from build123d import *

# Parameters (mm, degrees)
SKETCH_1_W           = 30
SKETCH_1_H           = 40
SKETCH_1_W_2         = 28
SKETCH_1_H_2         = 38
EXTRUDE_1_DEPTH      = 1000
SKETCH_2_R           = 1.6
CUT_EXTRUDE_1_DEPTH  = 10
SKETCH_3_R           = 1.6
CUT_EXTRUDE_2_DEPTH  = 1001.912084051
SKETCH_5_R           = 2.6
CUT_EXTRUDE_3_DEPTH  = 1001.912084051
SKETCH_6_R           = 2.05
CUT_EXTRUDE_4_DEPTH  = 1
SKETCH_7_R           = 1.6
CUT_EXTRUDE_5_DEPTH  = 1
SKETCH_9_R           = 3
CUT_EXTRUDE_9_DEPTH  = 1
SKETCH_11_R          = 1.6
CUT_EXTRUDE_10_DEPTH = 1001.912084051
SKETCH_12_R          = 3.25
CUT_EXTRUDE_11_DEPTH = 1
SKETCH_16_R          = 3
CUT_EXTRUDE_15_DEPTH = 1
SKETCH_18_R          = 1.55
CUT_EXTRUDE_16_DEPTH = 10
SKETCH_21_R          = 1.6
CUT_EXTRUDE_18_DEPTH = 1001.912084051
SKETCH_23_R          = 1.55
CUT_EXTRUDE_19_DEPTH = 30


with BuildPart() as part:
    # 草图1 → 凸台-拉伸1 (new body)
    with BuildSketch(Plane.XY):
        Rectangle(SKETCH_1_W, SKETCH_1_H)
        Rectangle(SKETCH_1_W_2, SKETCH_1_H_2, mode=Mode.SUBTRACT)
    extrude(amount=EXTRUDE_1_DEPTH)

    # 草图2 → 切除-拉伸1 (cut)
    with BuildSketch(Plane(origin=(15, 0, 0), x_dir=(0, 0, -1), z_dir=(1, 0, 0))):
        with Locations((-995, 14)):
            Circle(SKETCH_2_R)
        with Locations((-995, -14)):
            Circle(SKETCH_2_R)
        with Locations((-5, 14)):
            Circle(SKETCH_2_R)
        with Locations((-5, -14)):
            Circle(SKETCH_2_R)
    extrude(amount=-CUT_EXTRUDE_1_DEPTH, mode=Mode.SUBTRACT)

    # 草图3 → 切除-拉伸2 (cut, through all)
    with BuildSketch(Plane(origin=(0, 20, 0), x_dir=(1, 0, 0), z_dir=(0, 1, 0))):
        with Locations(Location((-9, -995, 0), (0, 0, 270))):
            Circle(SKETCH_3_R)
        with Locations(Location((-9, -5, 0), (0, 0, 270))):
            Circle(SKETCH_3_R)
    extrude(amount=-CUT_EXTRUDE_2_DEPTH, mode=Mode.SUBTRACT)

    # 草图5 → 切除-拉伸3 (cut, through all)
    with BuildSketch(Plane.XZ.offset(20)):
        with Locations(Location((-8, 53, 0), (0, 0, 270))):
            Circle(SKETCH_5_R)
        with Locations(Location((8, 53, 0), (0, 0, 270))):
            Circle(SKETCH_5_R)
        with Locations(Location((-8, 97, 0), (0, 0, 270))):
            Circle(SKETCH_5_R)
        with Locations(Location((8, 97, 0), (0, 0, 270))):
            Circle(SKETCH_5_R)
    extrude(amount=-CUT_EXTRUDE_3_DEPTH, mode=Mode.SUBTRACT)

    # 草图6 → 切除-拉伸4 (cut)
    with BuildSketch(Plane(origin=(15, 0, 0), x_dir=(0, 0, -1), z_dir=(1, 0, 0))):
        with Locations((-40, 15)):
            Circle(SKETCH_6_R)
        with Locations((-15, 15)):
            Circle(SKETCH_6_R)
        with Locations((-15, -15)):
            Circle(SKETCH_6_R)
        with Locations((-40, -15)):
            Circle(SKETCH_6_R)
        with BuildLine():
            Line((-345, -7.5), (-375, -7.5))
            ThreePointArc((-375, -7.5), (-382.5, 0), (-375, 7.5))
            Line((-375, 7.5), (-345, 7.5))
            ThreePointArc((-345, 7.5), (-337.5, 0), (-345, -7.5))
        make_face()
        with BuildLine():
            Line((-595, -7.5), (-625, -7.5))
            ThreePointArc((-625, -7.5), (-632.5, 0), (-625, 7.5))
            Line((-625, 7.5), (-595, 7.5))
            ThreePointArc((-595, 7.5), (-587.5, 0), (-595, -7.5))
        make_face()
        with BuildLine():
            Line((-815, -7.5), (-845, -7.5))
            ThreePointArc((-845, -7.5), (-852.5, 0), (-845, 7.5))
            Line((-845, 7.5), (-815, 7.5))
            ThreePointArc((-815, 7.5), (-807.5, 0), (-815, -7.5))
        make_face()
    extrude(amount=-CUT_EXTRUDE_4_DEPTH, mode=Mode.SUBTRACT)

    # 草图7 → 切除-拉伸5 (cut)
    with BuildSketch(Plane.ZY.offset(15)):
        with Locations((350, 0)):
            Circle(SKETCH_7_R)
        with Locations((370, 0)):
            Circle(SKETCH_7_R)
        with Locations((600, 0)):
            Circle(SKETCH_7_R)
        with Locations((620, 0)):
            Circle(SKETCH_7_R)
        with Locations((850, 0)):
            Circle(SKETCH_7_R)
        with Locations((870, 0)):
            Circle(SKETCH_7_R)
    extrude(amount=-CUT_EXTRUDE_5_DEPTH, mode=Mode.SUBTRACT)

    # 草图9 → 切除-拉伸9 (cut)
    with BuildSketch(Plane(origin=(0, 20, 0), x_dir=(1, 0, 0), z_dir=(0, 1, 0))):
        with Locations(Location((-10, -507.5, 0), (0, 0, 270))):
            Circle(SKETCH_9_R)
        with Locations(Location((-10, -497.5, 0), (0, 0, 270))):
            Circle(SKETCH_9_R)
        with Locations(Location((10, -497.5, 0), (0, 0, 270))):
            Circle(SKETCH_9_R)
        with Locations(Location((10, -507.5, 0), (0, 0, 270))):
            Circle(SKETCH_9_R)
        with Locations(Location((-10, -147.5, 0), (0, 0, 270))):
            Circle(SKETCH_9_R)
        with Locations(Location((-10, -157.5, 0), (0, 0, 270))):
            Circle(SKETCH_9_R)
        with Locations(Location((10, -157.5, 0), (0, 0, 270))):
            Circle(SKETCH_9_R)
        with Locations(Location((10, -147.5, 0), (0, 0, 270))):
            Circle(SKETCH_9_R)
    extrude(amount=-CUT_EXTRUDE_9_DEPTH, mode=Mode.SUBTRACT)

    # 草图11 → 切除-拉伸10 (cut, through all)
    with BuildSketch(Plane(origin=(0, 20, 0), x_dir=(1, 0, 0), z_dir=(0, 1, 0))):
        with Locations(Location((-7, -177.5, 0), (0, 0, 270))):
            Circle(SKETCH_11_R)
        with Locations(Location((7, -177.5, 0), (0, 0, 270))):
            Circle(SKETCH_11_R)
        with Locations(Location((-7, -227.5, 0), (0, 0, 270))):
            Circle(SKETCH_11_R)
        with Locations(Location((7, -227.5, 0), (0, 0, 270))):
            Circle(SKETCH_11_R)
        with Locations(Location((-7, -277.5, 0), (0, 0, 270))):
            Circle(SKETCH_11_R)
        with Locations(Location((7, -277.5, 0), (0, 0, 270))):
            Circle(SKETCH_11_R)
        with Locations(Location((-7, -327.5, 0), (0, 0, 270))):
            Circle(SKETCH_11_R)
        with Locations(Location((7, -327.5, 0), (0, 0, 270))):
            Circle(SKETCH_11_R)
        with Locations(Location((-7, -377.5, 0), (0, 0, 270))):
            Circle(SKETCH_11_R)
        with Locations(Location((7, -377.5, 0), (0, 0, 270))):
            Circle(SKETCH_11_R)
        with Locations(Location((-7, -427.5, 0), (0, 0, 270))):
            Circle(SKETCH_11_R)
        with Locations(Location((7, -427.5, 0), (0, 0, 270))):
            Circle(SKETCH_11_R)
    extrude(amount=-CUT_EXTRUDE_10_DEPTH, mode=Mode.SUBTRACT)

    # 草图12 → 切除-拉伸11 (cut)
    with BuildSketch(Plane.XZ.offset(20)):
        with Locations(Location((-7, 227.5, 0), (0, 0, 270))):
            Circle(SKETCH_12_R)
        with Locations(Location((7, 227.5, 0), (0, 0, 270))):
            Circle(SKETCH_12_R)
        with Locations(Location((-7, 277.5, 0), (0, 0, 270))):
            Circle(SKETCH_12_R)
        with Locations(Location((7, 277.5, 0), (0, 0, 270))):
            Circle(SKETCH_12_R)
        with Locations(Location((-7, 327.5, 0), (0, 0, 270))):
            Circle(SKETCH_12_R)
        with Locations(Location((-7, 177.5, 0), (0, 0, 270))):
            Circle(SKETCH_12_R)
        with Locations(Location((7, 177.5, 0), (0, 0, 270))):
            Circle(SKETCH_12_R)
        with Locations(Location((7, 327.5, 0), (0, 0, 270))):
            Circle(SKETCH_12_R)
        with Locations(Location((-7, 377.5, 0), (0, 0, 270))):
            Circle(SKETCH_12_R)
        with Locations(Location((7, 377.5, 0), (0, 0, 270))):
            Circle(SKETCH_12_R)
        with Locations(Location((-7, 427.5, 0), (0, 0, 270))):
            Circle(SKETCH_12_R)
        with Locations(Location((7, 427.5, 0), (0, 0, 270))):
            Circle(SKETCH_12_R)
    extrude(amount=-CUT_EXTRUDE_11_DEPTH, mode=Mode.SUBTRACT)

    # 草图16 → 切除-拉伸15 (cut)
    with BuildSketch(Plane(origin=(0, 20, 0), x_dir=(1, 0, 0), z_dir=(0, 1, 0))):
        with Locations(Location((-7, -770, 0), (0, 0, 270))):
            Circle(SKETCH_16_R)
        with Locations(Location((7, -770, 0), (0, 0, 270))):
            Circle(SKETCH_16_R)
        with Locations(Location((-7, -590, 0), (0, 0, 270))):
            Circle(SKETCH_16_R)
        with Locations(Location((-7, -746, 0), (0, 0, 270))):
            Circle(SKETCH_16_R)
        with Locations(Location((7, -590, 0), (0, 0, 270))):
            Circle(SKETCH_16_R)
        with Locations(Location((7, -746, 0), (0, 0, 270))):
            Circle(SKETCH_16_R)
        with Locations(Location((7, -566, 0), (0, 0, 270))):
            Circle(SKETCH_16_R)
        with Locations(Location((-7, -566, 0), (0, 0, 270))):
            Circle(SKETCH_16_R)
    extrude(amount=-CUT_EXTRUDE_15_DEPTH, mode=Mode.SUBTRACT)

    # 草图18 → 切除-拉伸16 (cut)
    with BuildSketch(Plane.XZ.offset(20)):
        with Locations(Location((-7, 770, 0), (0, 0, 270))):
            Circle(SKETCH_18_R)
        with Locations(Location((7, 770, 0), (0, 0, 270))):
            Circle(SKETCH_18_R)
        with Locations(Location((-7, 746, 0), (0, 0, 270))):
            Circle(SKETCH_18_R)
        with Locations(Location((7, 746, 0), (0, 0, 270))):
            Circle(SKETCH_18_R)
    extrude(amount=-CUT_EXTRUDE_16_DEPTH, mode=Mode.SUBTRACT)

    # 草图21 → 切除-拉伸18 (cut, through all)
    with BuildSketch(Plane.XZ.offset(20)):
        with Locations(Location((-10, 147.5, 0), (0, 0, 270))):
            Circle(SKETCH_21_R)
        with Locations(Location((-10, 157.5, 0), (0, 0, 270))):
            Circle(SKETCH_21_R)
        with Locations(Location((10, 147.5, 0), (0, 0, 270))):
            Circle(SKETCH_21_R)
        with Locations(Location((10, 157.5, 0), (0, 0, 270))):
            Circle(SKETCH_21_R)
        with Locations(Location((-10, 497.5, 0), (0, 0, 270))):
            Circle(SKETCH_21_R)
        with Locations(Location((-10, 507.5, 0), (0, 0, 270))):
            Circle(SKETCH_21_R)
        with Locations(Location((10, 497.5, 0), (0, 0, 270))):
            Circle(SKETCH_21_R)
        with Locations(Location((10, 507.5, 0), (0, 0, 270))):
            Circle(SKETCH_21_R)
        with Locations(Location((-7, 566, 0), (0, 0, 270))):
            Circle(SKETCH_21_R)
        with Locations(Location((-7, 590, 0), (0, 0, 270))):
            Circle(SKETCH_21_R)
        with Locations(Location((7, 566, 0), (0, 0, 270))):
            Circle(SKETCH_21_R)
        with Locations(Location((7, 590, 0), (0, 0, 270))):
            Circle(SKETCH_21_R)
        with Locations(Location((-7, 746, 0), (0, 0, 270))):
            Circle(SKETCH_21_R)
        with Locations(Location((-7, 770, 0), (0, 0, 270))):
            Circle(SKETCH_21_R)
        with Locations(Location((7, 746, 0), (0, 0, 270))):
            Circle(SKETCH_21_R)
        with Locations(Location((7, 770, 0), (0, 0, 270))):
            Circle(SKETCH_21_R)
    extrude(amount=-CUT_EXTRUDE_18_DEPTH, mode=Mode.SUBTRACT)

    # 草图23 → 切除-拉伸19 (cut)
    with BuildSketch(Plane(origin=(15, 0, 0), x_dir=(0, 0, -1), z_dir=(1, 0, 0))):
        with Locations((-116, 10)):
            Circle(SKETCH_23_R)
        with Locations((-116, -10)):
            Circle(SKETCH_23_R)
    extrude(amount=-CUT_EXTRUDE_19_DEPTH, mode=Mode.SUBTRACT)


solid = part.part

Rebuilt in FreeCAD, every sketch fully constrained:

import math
import FreeCAD as App
import Part
import Sketcher

V = App.Vector
Q = App.Units.Quantity

doc = App.newDocument("Part")
body = doc.addObject("PartDesign::Body", "Body")

sketch1 = doc.addObject("Sketcher::SketchObject", "Sketch")
body.addObject(sketch1)
sketch1.AttachmentSupport = (doc.XY_Plane, [""])
sketch1.MapMode = "FlatFace"
sketch1.addGeometry([
    Part.LineSegment(V(-15, 20, 0), V(-15, -20, 0)),
    Part.LineSegment(V(-15, -20, 0), V(15, -20, 0)),
    Part.LineSegment(V(15, -20, 0), V(15, 20, 0)),
    Part.LineSegment(V(15, 20, 0), V(-15, 20, 0)),
    Part.LineSegment(V(14, -19, 0), V(-14, -19, 0)),
    Part.LineSegment(V(-14, -19, 0), V(-14, 19, 0)),
    Part.LineSegment(V(-14, 19, 0), V(14, 19, 0)),
    Part.LineSegment(V(14, 19, 0), V(14, -19, 0)),
], False)
sketch1.addConstraint([
    Sketcher.Constraint("Coincident", 0, 2, 1, 1),
    Sketcher.Constraint("Coincident", 1, 2, 2, 1),
    Sketcher.Constraint("Coincident", 2, 2, 3, 1),
    Sketcher.Constraint("Coincident", 3, 2, 0, 1),
    Sketcher.Constraint("Coincident", 4, 2, 5, 1),
    Sketcher.Constraint("Coincident", 5, 2, 6, 1),
    Sketcher.Constraint("Coincident", 6, 2, 7, 1),
    Sketcher.Constraint("Coincident", 7, 2, 4, 1),
    Sketcher.Constraint("Vertical", 0),
    Sketcher.Constraint("Horizontal", 1),
    Sketcher.Constraint("Vertical", 2),
    Sketcher.Constraint("Horizontal", 3),
    Sketcher.Constraint("Horizontal", 4),
    Sketcher.Constraint("Vertical", 5),
    Sketcher.Constraint("Horizontal", 6),
    Sketcher.Constraint("Vertical", 7),
    Sketcher.Constraint("Symmetric", 0, 2, 2, 2, -1, 1),
    Sketcher.Constraint("Symmetric", 4, 2, 6, 2, -1, 1),
    Sketcher.Constraint("DistanceX", 1, 1, 1, 2, Q("30 mm")),
    Sketcher.Constraint("DistanceX", 4, 2, 4, 1, Q("28 mm")),
    Sketcher.Constraint("DistanceY", 0, 2, 0, 1, Q("40 mm")),
    Sketcher.Constraint("DistanceY", 5, 1, 5, 2, Q("38 mm")),
])
pad1 = doc.addObject("PartDesign::Pad", "Pad")
body.addObject(pad1)
pad1.Profile = sketch1
pad1.Length = 1000

sketch2 = doc.addObject("Sketcher::SketchObject", "Sketch001")
body.addObject(sketch2)
sketch2.AttachmentSupport = (doc.YZ_Plane, [""])
sketch2.MapMode = "FlatFace"
sketch2.AttachmentOffset = App.Placement(V(0, 0, 15), App.Rotation())
sketch2.addGeometry([
    Part.Circle(V(14, 995, 0), V(0, 0, 1), 1.6),
    Part.Circle(V(-14, 995, 0), V(0, 0, 1), 1.6),
    Part.Circle(V(14, 5, 0), V(0, 0, 1), 1.6),
    Part.Circle(V(-14, 5, 0), V(0, 0, 1), 1.6),
], False)
sketch2.addConstraint([
    Sketcher.Constraint("Equal", 0, 1),
    Sketcher.Constraint("Equal", 1, 2),
    Sketcher.Constraint("Equal", 2, 3),
    Sketcher.Constraint("Symmetric", 0, 3, 1, 3, -2),
    Sketcher.Constraint("Symmetric", 2, 3, 3, 3, -2),
    Sketcher.Constraint("Vertical", 0, 3, 2, 3),
    Sketcher.Constraint("Diameter", 0, Q("3.2 mm")),
    Sketcher.Constraint("DistanceX", -1, 1, 0, 3, Q("14 mm")),
    Sketcher.Constraint("DistanceY", -1, 1, 0, 3, Q("995 mm")),
    Sketcher.Constraint("DistanceY", -1, 1, 2, 3, Q("5 mm")),
])
pocket1 = doc.addObject("PartDesign::Pocket", "Pocket")
body.addObject(pocket1)
pocket1.Profile = sketch2
pocket1.Length = 10

sketch3 = doc.addObject("Sketcher::SketchObject", "Sketch002")
body.addObject(sketch3)
sketch3.AttachmentSupport = (doc.XZ_Plane, [""])
sketch3.MapMode = "FlatFace"
sketch3.AttachmentOffset = App.Placement(V(0, 0, -20), App.Rotation())
sketch3.addGeometry([
    Part.Circle(V(-9, 995, 0), V(0, 0, 1), 1.6),
    Part.Circle(V(-9, 5, 0), V(0, 0, 1), 1.6),
], False)
sketch3.addConstraint([
    Sketcher.Constraint("Equal", 0, 1),
    Sketcher.Constraint("Vertical", 0, 3, 1, 3),
    Sketcher.Constraint("Diameter", 0, Q("3.2 mm")),
    Sketcher.Constraint("DistanceX", 0, 3, -1, 1, Q("9 mm")),
    Sketcher.Constraint("DistanceY", -1, 1, 0, 3, Q("995 mm")),
    Sketcher.Constraint("DistanceY", -1, 1, 1, 3, Q("5 mm")),
])
pocket2 = doc.addObject("PartDesign::Pocket", "Pocket001")
body.addObject(pocket2)
pocket2.Profile = sketch3
pocket2.Type = "ThroughAll"
pocket2.Reversed = True

sketch4 = doc.addObject("Sketcher::SketchObject", "Sketch003")
body.addObject(sketch4)
sketch4.AttachmentSupport = (doc.XZ_Plane, [""])
sketch4.MapMode = "FlatFace"
sketch4.AttachmentOffset = App.Placement(V(0, 0, 20), App.Rotation())
sketch4.addGeometry([
    Part.Circle(V(-8, 53, 0), V(0, 0, 1), 2.6),
    Part.Circle(V(8, 53, 0), V(0, 0, 1), 2.6),
    Part.Circle(V(-8, 97, 0), V(0, 0, 1), 2.6),
    Part.Circle(V(8, 97, 0), V(0, 0, 1), 2.6),
], False)
sketch4.addConstraint([
    Sketcher.Constraint("Equal", 0, 1),
    Sketcher.Constraint("Equal", 1, 2),
    Sketcher.Constraint("Equal", 2, 3),
    Sketcher.Constraint("Symmetric", 0, 3, 1, 3, -2),
    Sketcher.Constraint("Symmetric", 2, 3, 3, 3, -2),
    Sketcher.Constraint("Vertical", 0, 3, 2, 3),
    Sketcher.Constraint("Diameter", 0, Q("5.2 mm")),
    Sketcher.Constraint("DistanceX", 0, 3, -1, 1, Q("8 mm")),
    Sketcher.Constraint("DistanceY", -1, 1, 0, 3, Q("53 mm")),
    Sketcher.Constraint("DistanceY", -1, 1, 2, 3, Q("97 mm")),
])
pocket3 = doc.addObject("PartDesign::Pocket", "Pocket002")
body.addObject(pocket3)
pocket3.Profile = sketch4
pocket3.Type = "ThroughAll"

sketch5 = doc.addObject("Sketcher::SketchObject", "Sketch004")
body.addObject(sketch5)
sketch5.AttachmentSupport = (doc.YZ_Plane, [""])
sketch5.MapMode = "FlatFace"
sketch5.AttachmentOffset = App.Placement(V(0, 0, 15), App.Rotation())
sketch5.addGeometry([
    Part.Circle(V(15, 40, 0), V(0, 0, 1), 2),
    Part.Circle(V(15, 15, 0), V(0, 0, 1), 2),
    Part.Circle(V(-15, 15, 0), V(0, 0, 1), 2),
    Part.Circle(V(-15, 40, 0), V(0, 0, 1), 2),
    Part.LineSegment(V(-7.5, 375, 0), V(-7.5, 345, 0)),
    Part.ArcOfCircle(Part.Circle(V(0, 345, 0), V(0, 0, 1), 7.5), math.radians(180), math.radians(360)),
    Part.LineSegment(V(7.5, 345, 0), V(7.5, 375, 0)),
    Part.ArcOfCircle(Part.Circle(V(0, 375, 0), V(0, 0, 1), 7.5), math.radians(0), math.radians(180)),
    Part.LineSegment(V(-7.5, 625, 0), V(-7.5, 595, 0)),
    Part.ArcOfCircle(Part.Circle(V(0, 595, 0), V(0, 0, 1), 7.5), math.radians(180), math.radians(360)),
    Part.LineSegment(V(7.5, 595, 0), V(7.5, 625, 0)),
    Part.ArcOfCircle(Part.Circle(V(0, 625, 0), V(0, 0, 1), 7.5), math.radians(0), math.radians(180)),
    Part.LineSegment(V(-7.5, 845, 0), V(-7.5, 815, 0)),
    Part.ArcOfCircle(Part.Circle(V(0, 815, 0), V(0, 0, 1), 7.5), math.radians(180), math.radians(360)),
    Part.LineSegment(V(7.5, 815, 0), V(7.5, 845, 0)),
    Part.ArcOfCircle(Part.Circle(V(0, 845, 0), V(0, 0, 1), 7.5), math.radians(0), math.radians(180)),
], False)
sketch5.addConstraint([
    Sketcher.Constraint("Tangent", 4, 2, 5, 1),
    Sketcher.Constraint("Tangent", 5, 2, 6, 1),
    Sketcher.Constraint("Tangent", 6, 2, 7, 1),
    Sketcher.Constraint("Tangent", 7, 2, 4, 1),
    Sketcher.Constraint("Tangent", 8, 2, 9, 1),
    Sketcher.Constraint("Tangent", 9, 2, 10, 1),
    Sketcher.Constraint("Tangent", 10, 2, 11, 1),
    Sketcher.Constraint("Tangent", 11, 2, 8, 1),
    Sketcher.Constraint("Tangent", 12, 2, 13, 1),
    Sketcher.Constraint("Tangent", 13, 2, 14, 1),
    Sketcher.Constraint("Tangent", 14, 2, 15, 1),
    Sketcher.Constraint("Tangent", 15, 2, 12, 1),
    Sketcher.Constraint("Vertical", 4),
    Sketcher.Constraint("Vertical", 6),
    Sketcher.Constraint("Vertical", 8),
    Sketcher.Constraint("Vertical", 10),
    Sketcher.Constraint("Vertical", 12),
    Sketcher.Constraint("Vertical", 14),
    Sketcher.Constraint("Equal", 0, 1),
    Sketcher.Constraint("Equal", 1, 2),
    Sketcher.Constraint("Equal", 2, 3),
    Sketcher.Constraint("Equal", 7, 9),
    Sketcher.Constraint("Equal", 11, 13),
    Sketcher.Constraint("Symmetric", 1, 3, 2, 3, -2),
    Sketcher.Constraint("Symmetric", 0, 3, 3, 3, -2),
    Sketcher.Constraint("PointOnObject", 5, 3, -2),
    Sketcher.Constraint("PointOnObject", 9, 3, -2),
    Sketcher.Constraint("PointOnObject", 13, 3, -2),
    Sketcher.Constraint("Vertical", 0, 3, 1, 3),
    Sketcher.Constraint("Equal", 6, 8),
    Sketcher.Constraint("Equal", 10, 12),
    Sketcher.Constraint("Diameter", 0, Q("4.1 mm")),
    Sketcher.Constraint("Radius", 5, Q("7.5 mm")),
    Sketcher.Constraint("DistanceY", 4, 2, 4, 1, Q("30 mm")),
    Sketcher.Constraint("DistanceX", -1, 1, 0, 3, Q("15 mm")),
    Sketcher.Constraint("DistanceY", -1, 1, 0, 3, Q("40 mm")),
    Sketcher.Constraint("DistanceY", -1, 1, 1, 3, Q("15 mm")),
    Sketcher.Constraint("DistanceY", -1, 1, 5, 3, Q("345 mm")),
    Sketcher.Constraint("DistanceY", -1, 1, 9, 3, Q("595 mm")),
    Sketcher.Constraint("DistanceY", -1, 1, 13, 3, Q("815 mm")),
])
pocket4 = doc.addObject("PartDesign::Pocket", "Pocket003")
body.addObject(pocket4)
pocket4.Profile = sketch5
pocket4.Length = 1

sketch6 = doc.addObject("Sketcher::SketchObject", "Sketch005")
body.addObject(sketch6)
sketch6.AttachmentSupport = (doc.YZ_Plane, [""])
sketch6.MapMode = "FlatFace"
sketch6.AttachmentOffset = App.Placement(V(0, 0, -15), App.Rotation())
sketch6.addGeometry([
    Part.Circle(V(0, 350, 0), V(0, 0, 1), 1.6),
    Part.Circle(V(0, 370, 0), V(0, 0, 1), 1.6),
    Part.Circle(V(0, 600, 0), V(0, 0, 1), 1.6),
    Part.Circle(V(0, 620, 0), V(0, 0, 1), 1.6),
    Part.Circle(V(0, 850, 0), V(0, 0, 1), 1.6),
    Part.Circle(V(0, 870, 0), V(0, 0, 1), 1.6),
], False)
sketch6.addConstraint([
    Sketcher.Constraint("Equal", 0, 1),
    Sketcher.Constraint("Equal", 1, 2),
    Sketcher.Constraint("Equal", 2, 3),
    Sketcher.Constraint("Equal", 3, 4),
    Sketcher.Constraint("Equal", 4, 5),
    Sketcher.Constraint("PointOnObject", 0, 3, -2),
    Sketcher.Constraint("PointOnObject", 1, 3, -2),
    Sketcher.Constraint("PointOnObject", 2, 3, -2),
    Sketcher.Constraint("PointOnObject", 3, 3, -2),
    Sketcher.Constraint("PointOnObject", 4, 3, -2),
    Sketcher.Constraint("PointOnObject", 5, 3, -2),
    Sketcher.Constraint("Diameter", 0, Q("3.2 mm")),
    Sketcher.Constraint("DistanceY", -1, 1, 0, 3, Q("350 mm")),
    Sketcher.Constraint("DistanceY", -1, 1, 1, 3, Q("370 mm")),
    Sketcher.Constraint("DistanceY", -1, 1, 2, 3, Q("600 mm")),
    Sketcher.Constraint("DistanceY", -1, 1, 3, 3, Q("620 mm")),
    Sketcher.Constraint("DistanceY", -1, 1, 4, 3, Q("850 mm")),
    Sketcher.Constraint("DistanceY", -1, 1, 5, 3, Q("870 mm")),
])
pocket5 = doc.addObject("PartDesign::Pocket", "Pocket004")
body.addObject(pocket5)
pocket5.Profile = sketch6
pocket5.Length = 1
pocket5.Reversed = True

sketch7 = doc.addObject("Sketcher::SketchObject", "Sketch006")
body.addObject(sketch7)
sketch7.AttachmentSupport = (doc.XZ_Plane, [""])
sketch7.MapMode = "FlatFace"
sketch7.AttachmentOffset = App.Placement(V(0, 0, -20), App.Rotation())
sketch7.addGeometry([
    Part.Circle(V(-10, 507.5, 0), V(0, 0, 1), 3),
    Part.Circle(V(-10, 497.5, 0), V(0, 0, 1), 3),
    Part.Circle(V(10, 497.5, 0), V(0, 0, 1), 3),
    Part.Circle(V(10, 507.5, 0), V(0, 0, 1), 3),
    Part.Circle(V(-10, 147.5, 0), V(0, 0, 1), 3),
    Part.Circle(V(-10, 157.5, 0), V(0, 0, 1), 3),
    Part.Circle(V(10, 157.5, 0), V(0, 0, 1), 3),
    Part.Circle(V(10, 147.5, 0), V(0, 0, 1), 3),
], False)
sketch7.addConstraint([
    Sketcher.Constraint("Equal", 0, 1),
    Sketcher.Constraint("Equal", 1, 2),
    Sketcher.Constraint("Equal", 2, 3),
    Sketcher.Constraint("Equal", 3, 4),
    Sketcher.Constraint("Equal", 4, 5),
    Sketcher.Constraint("Equal", 5, 6),
    Sketcher.Constraint("Equal", 6, 7),
    Sketcher.Constraint("Symmetric", 1, 3, 2, 3, -2),
    Sketcher.Constraint("Symmetric", 0, 3, 3, 3, -2),
    Sketcher.Constraint("Symmetric", 5, 3, 6, 3, -2),
    Sketcher.Constraint("Symmetric", 4, 3, 7, 3, -2),
    Sketcher.Constraint("Vertical", 0, 3, 1, 3),
    Sketcher.Constraint("Vertical", 1, 3, 4, 3),
    Sketcher.Constraint("Vertical", 4, 3, 5, 3),
    Sketcher.Constraint("Diameter", 0, Q("6 mm")),
    Sketcher.Constraint("DistanceX", 0, 3, -1, 1, Q("10 mm")),
    Sketcher.Constraint("DistanceY", 1, 3, 0, 3, Q("10 mm")),
    Sketcher.Constraint("DistanceY", 4, 3, 1, 3, Q("350 mm")),
    Sketcher.Constraint("DistanceY", 4, 3, 5, 3, Q("10 mm")),
    Sketcher.Constraint("DistanceY", -1, 1, 0, 3, Q("507.5 mm")),
])
pocket6 = doc.addObject("PartDesign::Pocket", "Pocket005")
body.addObject(pocket6)
pocket6.Profile = sketch7
pocket6.Length = 1
pocket6.Reversed = True

sketch8 = doc.addObject("Sketcher::SketchObject", "Sketch007")
body.addObject(sketch8)
sketch8.AttachmentSupport = (doc.XZ_Plane, [""])
sketch8.MapMode = "FlatFace"
sketch8.AttachmentOffset = App.Placement(V(0, 0, -20), App.Rotation())
sketch8.addGeometry([
    Part.Circle(V(-7, 177.5, 0), V(0, 0, 1), 1.6),
    Part.Circle(V(7, 177.5, 0), V(0, 0, 1), 1.6),
    Part.Circle(V(-7, 227.5, 0), V(0, 0, 1), 1.6),
    Part.Circle(V(7, 227.5, 0), V(0, 0, 1), 1.6),
    Part.Circle(V(-7, 277.5, 0), V(0, 0, 1), 1.6),
    Part.Circle(V(7, 277.5, 0), V(0, 0, 1), 1.6),
    Part.Circle(V(-7, 327.5, 0), V(0, 0, 1), 1.6),
    Part.Circle(V(7, 327.5, 0), V(0, 0, 1), 1.6),
    Part.Circle(V(-7, 377.5, 0), V(0, 0, 1), 1.6),
    Part.Circle(V(7, 377.5, 0), V(0, 0, 1), 1.6),
    Part.Circle(V(-7, 427.5, 0), V(0, 0, 1), 1.6),
    Part.Circle(V(7, 427.5, 0), V(0, 0, 1), 1.6),
], False)
sketch8.addConstraint([
    Sketcher.Constraint("Equal", 0, 1),
    Sketcher.Constraint("Equal", 1, 2),
    Sketcher.Constraint("Equal", 2, 3),
    Sketcher.Constraint("Equal", 3, 4),
    Sketcher.Constraint("Equal", 4, 5),
    Sketcher.Constraint("Equal", 5, 6),
    Sketcher.Constraint("Equal", 6, 7),
    Sketcher.Constraint("Equal", 7, 8),
    Sketcher.Constraint("Equal", 8, 9),
    Sketcher.Constraint("Equal", 9, 10),
    Sketcher.Constraint("Equal", 10, 11),
    Sketcher.Constraint("Symmetric", 0, 3, 1, 3, -2),
    Sketcher.Constraint("Symmetric", 2, 3, 3, 3, -2),
    Sketcher.Constraint("Symmetric", 4, 3, 5, 3, -2),
    Sketcher.Constraint("Symmetric", 6, 3, 7, 3, -2),
    Sketcher.Constraint("Symmetric", 8, 3, 9, 3, -2),
    Sketcher.Constraint("Symmetric", 10, 3, 11, 3, -2),
    Sketcher.Constraint("Vertical", 0, 3, 2, 3),
    Sketcher.Constraint("Vertical", 2, 3, 4, 3),
    Sketcher.Constraint("Vertical", 4, 3, 6, 3),
    Sketcher.Constraint("Vertical", 6, 3, 8, 3),
    Sketcher.Constraint("Vertical", 8, 3, 10, 3),
    Sketcher.Constraint("Diameter", 0, Q("3.2 mm")),
    Sketcher.Constraint("DistanceX", 0, 3, -1, 1, Q("7 mm")),
    Sketcher.Constraint("DistanceY", 0, 3, 2, 3, Q("50 mm")),
    Sketcher.Constraint("DistanceY", 2, 3, 4, 3, Q("50 mm")),
    Sketcher.Constraint("DistanceY", 4, 3, 6, 3, Q("50 mm")),
    Sketcher.Constraint("DistanceY", 6, 3, 8, 3, Q("50 mm")),
    Sketcher.Constraint("DistanceY", 8, 3, 10, 3, Q("50 mm")),
    Sketcher.Constraint("DistanceY", -1, 1, 0, 3, Q("177.5 mm")),
])
pocket7 = doc.addObject("PartDesign::Pocket", "Pocket006")
body.addObject(pocket7)
pocket7.Profile = sketch8
pocket7.Type = "ThroughAll"
pocket7.Reversed = True

sketch9 = doc.addObject("Sketcher::SketchObject", "Sketch008")
body.addObject(sketch9)
sketch9.AttachmentSupport = (doc.XZ_Plane, [""])
sketch9.MapMode = "FlatFace"
sketch9.AttachmentOffset = App.Placement(V(0, 0, 20), App.Rotation())
sketch9.addGeometry([
    Part.Circle(V(-7, 227.5, 0), V(0, 0, 1), 3.2),
    Part.Circle(V(7, 227.5, 0), V(0, 0, 1), 3.2),
    Part.Circle(V(-7, 277.5, 0), V(0, 0, 1), 3.2),
    Part.Circle(V(7, 277.5, 0), V(0, 0, 1), 3.2),
    Part.Circle(V(-7, 327.5, 0), V(0, 0, 1), 3.2),
    Part.Circle(V(-7, 177.5, 0), V(0, 0, 1), 3.2),
    Part.Circle(V(7, 177.5, 0), V(0, 0, 1), 3.2),
    Part.Circle(V(7, 327.5, 0), V(0, 0, 1), 3.2),
    Part.Circle(V(-7, 377.5, 0), V(0, 0, 1), 3.2),
    Part.Circle(V(7, 377.5, 0), V(0, 0, 1), 3.2),
    Part.Circle(V(-7, 427.5, 0), V(0, 0, 1), 3.2),
    Part.Circle(V(7, 427.5, 0), V(0, 0, 1), 3.2),
], False)
sketch9.addConstraint([
    Sketcher.Constraint("Equal", 0, 1),
    Sketcher.Constraint("Equal", 1, 2),
    Sketcher.Constraint("Equal", 2, 3),
    Sketcher.Constraint("Equal", 3, 4),
    Sketcher.Constraint("Equal", 4, 5),
    Sketcher.Constraint("Equal", 5, 6),
    Sketcher.Constraint("Equal", 6, 7),
    Sketcher.Constraint("Equal", 7, 8),
    Sketcher.Constraint("Equal", 8, 9),
    Sketcher.Constraint("Equal", 9, 10),
    Sketcher.Constraint("Equal", 10, 11),
    Sketcher.Constraint("Symmetric", 0, 3, 1, 3, -2),
    Sketcher.Constraint("Symmetric", 2, 3, 3, 3, -2),
    Sketcher.Constraint("Symmetric", 5, 3, 6, 3, -2),
    Sketcher.Constraint("Symmetric", 4, 3, 7, 3, -2),
    Sketcher.Constraint("Symmetric", 8, 3, 9, 3, -2),
    Sketcher.Constraint("Symmetric", 10, 3, 11, 3, -2),
    Sketcher.Constraint("Vertical", 0, 3, 2, 3),
    Sketcher.Constraint("Vertical", 2, 3, 4, 3),
    Sketcher.Constraint("Vertical", 4, 3, 5, 3),
    Sketcher.Constraint("Vertical", 5, 3, 8, 3),
    Sketcher.Constraint("Vertical", 8, 3, 10, 3),
    Sketcher.Constraint("Diameter", 0, Q("6.5 mm")),
    Sketcher.Constraint("DistanceX", 0, 3, -1, 1, Q("7 mm")),
    Sketcher.Constraint("DistanceY", 0, 3, 2, 3, Q("50 mm")),
    Sketcher.Constraint("DistanceY", 2, 3, 4, 3, Q("50 mm")),
    Sketcher.Constraint("DistanceY", 5, 3, 0, 3, Q("50 mm")),
    Sketcher.Constraint("DistanceY", 4, 3, 8, 3, Q("50 mm")),
    Sketcher.Constraint("DistanceY", 8, 3, 10, 3, Q("50 mm")),
    Sketcher.Constraint("DistanceY", -1, 1, 0, 3, Q("227.5 mm")),
])
pocket8 = doc.addObject("PartDesign::Pocket", "Pocket007")
body.addObject(pocket8)
pocket8.Profile = sketch9
pocket8.Length = 1

sketch10 = doc.addObject("Sketcher::SketchObject", "Sketch009")
body.addObject(sketch10)
sketch10.AttachmentSupport = (doc.XZ_Plane, [""])
sketch10.MapMode = "FlatFace"
sketch10.AttachmentOffset = App.Placement(V(0, 0, -20), App.Rotation())
sketch10.addGeometry([
    Part.Circle(V(-7, 770, 0), V(0, 0, 1), 3),
    Part.Circle(V(7, 770, 0), V(0, 0, 1), 3),
    Part.Circle(V(-7, 590, 0), V(0, 0, 1), 3),
    Part.Circle(V(-7, 746, 0), V(0, 0, 1), 3),
    Part.Circle(V(7, 590, 0), V(0, 0, 1), 3),
    Part.Circle(V(7, 746, 0), V(0, 0, 1), 3),
    Part.Circle(V(7, 566, 0), V(0, 0, 1), 3),
    Part.Circle(V(-7, 566, 0), V(0, 0, 1), 3),
], False)
sketch10.addConstraint([
    Sketcher.Constraint("Equal", 0, 1),
    Sketcher.Constraint("Equal", 1, 2),
    Sketcher.Constraint("Equal", 2, 3),
    Sketcher.Constraint("Equal", 3, 4),
    Sketcher.Constraint("Equal", 4, 5),
    Sketcher.Constraint("Equal", 5, 6),
    Sketcher.Constraint("Equal", 6, 7),
    Sketcher.Constraint("Symmetric", 0, 3, 1, 3, -2),
    Sketcher.Constraint("Symmetric", 2, 3, 4, 3, -2),
    Sketcher.Constraint("Symmetric", 3, 3, 5, 3, -2),
    Sketcher.Constraint("Symmetric", 6, 3, 7, 3, -2),
    Sketcher.Constraint("Vertical", 0, 3, 2, 3),
    Sketcher.Constraint("Vertical", 2, 3, 3, 3),
    Sketcher.Constraint("Vertical", 5, 3, 6, 3),
    Sketcher.Constraint("Diameter", 0, Q("6 mm")),
    Sketcher.Constraint("DistanceX", 0, 3, -1, 1, Q("7 mm")),
    Sketcher.Constraint("DistanceY", -1, 1, 0, 3, Q("770 mm")),
    Sketcher.Constraint("DistanceY", -1, 1, 2, 3, Q("590 mm")),
    Sketcher.Constraint("DistanceY", -1, 1, 3, 3, Q("746 mm")),
    Sketcher.Constraint("DistanceY", -1, 1, 6, 3, Q("566 mm")),
])
pocket9 = doc.addObject("PartDesign::Pocket", "Pocket008")
body.addObject(pocket9)
pocket9.Profile = sketch10
pocket9.Length = 1
pocket9.Reversed = True

sketch11 = doc.addObject("Sketcher::SketchObject", "Sketch010")
body.addObject(sketch11)
sketch11.AttachmentSupport = (doc.XZ_Plane, [""])
sketch11.MapMode = "FlatFace"
sketch11.AttachmentOffset = App.Placement(V(0, 0, 20), App.Rotation())
sketch11.addGeometry([
    Part.Circle(V(-7, 770, 0), V(0, 0, 1), 1.6),
    Part.Circle(V(7, 770, 0), V(0, 0, 1), 1.6),
    Part.Circle(V(-7, 746, 0), V(0, 0, 1), 1.6),
    Part.Circle(V(7, 746, 0), V(0, 0, 1), 1.6),
], False)
sketch11.addConstraint([
    Sketcher.Constraint("Equal", 0, 1),
    Sketcher.Constraint("Equal", 1, 2),
    Sketcher.Constraint("Equal", 2, 3),
    Sketcher.Constraint("Symmetric", 0, 3, 1, 3, -2),
    Sketcher.Constraint("Symmetric", 2, 3, 3, 3, -2),
    Sketcher.Constraint("Vertical", 0, 3, 2, 3),
    Sketcher.Constraint("Diameter", 0, Q("3.1 mm")),
    Sketcher.Constraint("DistanceX", 0, 3, -1, 1, Q("7 mm")),
    Sketcher.Constraint("DistanceY", -1, 1, 0, 3, Q("770 mm")),
    Sketcher.Constraint("DistanceY", -1, 1, 2, 3, Q("746 mm")),
])
pocket10 = doc.addObject("PartDesign::Pocket", "Pocket009")
body.addObject(pocket10)
pocket10.Profile = sketch11
pocket10.Length = 10

sketch12 = doc.addObject("Sketcher::SketchObject", "Sketch011")
body.addObject(sketch12)
sketch12.AttachmentSupport = (doc.XZ_Plane, [""])
sketch12.MapMode = "FlatFace"
sketch12.AttachmentOffset = App.Placement(V(0, 0, 20), App.Rotation())
sketch12.addGeometry([
    Part.Circle(V(-10, 147.5, 0), V(0, 0, 1), 1.6),
    Part.Circle(V(-10, 157.5, 0), V(0, 0, 1), 1.6),
    Part.Circle(V(10, 147.5, 0), V(0, 0, 1), 1.6),
    Part.Circle(V(10, 157.5, 0), V(0, 0, 1), 1.6),
    Part.Circle(V(-10, 497.5, 0), V(0, 0, 1), 1.6),
    Part.Circle(V(-10, 507.5, 0), V(0, 0, 1), 1.6),
    Part.Circle(V(10, 497.5, 0), V(0, 0, 1), 1.6),
    Part.Circle(V(10, 507.5, 0), V(0, 0, 1), 1.6),
    Part.Circle(V(-7, 566, 0), V(0, 0, 1), 1.6),
    Part.Circle(V(-7, 590, 0), V(0, 0, 1), 1.6),
    Part.Circle(V(7, 566, 0), V(0, 0, 1), 1.6),
    Part.Circle(V(7, 590, 0), V(0, 0, 1), 1.6),
    Part.Circle(V(-7, 746, 0), V(0, 0, 1), 1.6),
    Part.Circle(V(-7, 770, 0), V(0, 0, 1), 1.6),
    Part.Circle(V(7, 746, 0), V(0, 0, 1), 1.6),
    Part.Circle(V(7, 770, 0), V(0, 0, 1), 1.6),
], False)
sketch12.addConstraint([
    Sketcher.Constraint("Equal", 0, 1),
    Sketcher.Constraint("Equal", 1, 2),
    Sketcher.Constraint("Equal", 2, 3),
    Sketcher.Constraint("Equal", 3, 4),
    Sketcher.Constraint("Equal", 4, 5),
    Sketcher.Constraint("Equal", 5, 6),
    Sketcher.Constraint("Equal", 6, 7),
    Sketcher.Constraint("Equal", 7, 8),
    Sketcher.Constraint("Equal", 8, 9),
    Sketcher.Constraint("Equal", 9, 10),
    Sketcher.Constraint("Equal", 10, 11),
    Sketcher.Constraint("Equal", 11, 12),
    Sketcher.Constraint("Equal", 12, 13),
    Sketcher.Constraint("Equal", 13, 14),
    Sketcher.Constraint("Equal", 14, 15),
    Sketcher.Constraint("Symmetric", 0, 3, 2, 3, -2),
    Sketcher.Constraint("Symmetric", 1, 3, 3, 3, -2),
    Sketcher.Constraint("Symmetric", 4, 3, 6, 3, -2),
    Sketcher.Constraint("Symmetric", 5, 3, 7, 3, -2),
    Sketcher.Constraint("Symmetric", 8, 3, 10, 3, -2),
    Sketcher.Constraint("Symmetric", 9, 3, 11, 3, -2),
    Sketcher.Constraint("Symmetric", 12, 3, 14, 3, -2),
    Sketcher.Constraint("Symmetric", 13, 3, 15, 3, -2),
    Sketcher.Constraint("Vertical", 0, 3, 1, 3),
    Sketcher.Constraint("Vertical", 1, 3, 4, 3),
    Sketcher.Constraint("Vertical", 4, 3, 5, 3),
    Sketcher.Constraint("Vertical", 8, 3, 9, 3),
    Sketcher.Constraint("Vertical", 9, 3, 12, 3),
    Sketcher.Constraint("Vertical", 12, 3, 13, 3),
    Sketcher.Constraint("Diameter", 0, Q("3.2 mm")),
    Sketcher.Constraint("DistanceX", 0, 3, -1, 1, Q("10 mm")),
    Sketcher.Constraint("DistanceX", 8, 3, -1, 1, Q("7 mm")),
    Sketcher.Constraint("DistanceY", -1, 1, 8, 3, Q("566 mm")),
    Sketcher.Constraint("DistanceY", -1, 1, 9, 3, Q("590 mm")),
    Sketcher.Constraint("DistanceY", -1, 1, 12, 3, Q("746 mm")),
    Sketcher.Constraint("DistanceY", -1, 1, 13, 3, Q("770 mm")),
    Sketcher.Constraint("DistanceY", 0, 3, 1, 3, Q("10 mm")),
    Sketcher.Constraint("DistanceY", 1, 3, 4, 3, Q("340 mm")),
    Sketcher.Constraint("DistanceY", 4, 3, 5, 3, Q("10 mm")),
    Sketcher.Constraint("DistanceY", -1, 1, 0, 3, Q("147.5 mm")),
])
pocket11 = doc.addObject("PartDesign::Pocket", "Pocket010")
body.addObject(pocket11)
pocket11.Profile = sketch12
pocket11.Type = "ThroughAll"

sketch13 = doc.addObject("Sketcher::SketchObject", "Sketch012")
body.addObject(sketch13)
sketch13.AttachmentSupport = (doc.YZ_Plane, [""])
sketch13.MapMode = "FlatFace"
sketch13.AttachmentOffset = App.Placement(V(0, 0, 15), App.Rotation())
sketch13.addGeometry([
    Part.Circle(V(10, 116, 0), V(0, 0, 1), 1.6),
    Part.Circle(V(-10, 116, 0), V(0, 0, 1), 1.6),
], False)
sketch13.addConstraint([
    Sketcher.Constraint("Equal", 0, 1),
    Sketcher.Constraint("Symmetric", 0, 3, 1, 3, -2),
    Sketcher.Constraint("Diameter", 0, Q("3.1 mm")),
    Sketcher.Constraint("DistanceX", -1, 1, 0, 3, Q("10 mm")),
    Sketcher.Constraint("DistanceY", -1, 1, 0, 3, Q("116 mm")),
])
pocket12 = doc.addObject("PartDesign::Pocket", "Pocket011")
body.addObject(pocket12)
pocket12.Profile = sketch13
pocket12.Length = 30

doc.recompute()
